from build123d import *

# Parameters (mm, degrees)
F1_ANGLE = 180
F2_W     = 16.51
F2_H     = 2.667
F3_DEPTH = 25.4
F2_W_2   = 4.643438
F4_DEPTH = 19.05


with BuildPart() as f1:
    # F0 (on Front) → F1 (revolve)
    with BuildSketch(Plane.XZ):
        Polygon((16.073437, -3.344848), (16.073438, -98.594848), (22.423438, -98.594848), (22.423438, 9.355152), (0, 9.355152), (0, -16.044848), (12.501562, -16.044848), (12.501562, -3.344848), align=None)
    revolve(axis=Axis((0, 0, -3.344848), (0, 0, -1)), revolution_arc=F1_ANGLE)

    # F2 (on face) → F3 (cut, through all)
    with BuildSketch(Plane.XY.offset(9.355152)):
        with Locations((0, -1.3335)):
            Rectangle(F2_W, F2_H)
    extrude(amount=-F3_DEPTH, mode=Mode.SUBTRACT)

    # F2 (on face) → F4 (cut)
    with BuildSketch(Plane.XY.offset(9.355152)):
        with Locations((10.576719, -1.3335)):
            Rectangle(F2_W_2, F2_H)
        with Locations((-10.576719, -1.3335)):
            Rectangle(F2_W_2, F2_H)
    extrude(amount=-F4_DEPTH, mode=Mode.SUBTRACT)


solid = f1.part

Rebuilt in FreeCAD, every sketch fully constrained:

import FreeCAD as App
import Part
import Sketcher
Q = App.Units.Quantity

doc = App.newDocument("Part")
body = doc.addObject("PartDesign::Body", "Body")

# Sketch on XZ plane
sketch1 = body.newObject("Sketcher::SketchObject", "Sketch")
sketch1.AttachmentSupport = (doc.getObject("XZ_Plane"), [""])
sketch1.MapMode = "FlatFace"
sketch1.addGeometry([
    Part.LineSegment(App.Vector(16.1, -3.3, 0), App.Vector(16.1, -98.6, 0)),  # 0
    Part.LineSegment(App.Vector(16.1, -98.6, 0), App.Vector(22.4, -98.6, 0)),  # 1
    Part.LineSegment(App.Vector(22.4, -98.6, 0), App.Vector(22.4, 9.4, 0)),  # 2
    Part.LineSegment(App.Vector(22.4, 9.4, 0), App.Vector(0, 9.4, 0)),  # 3
    Part.LineSegment(App.Vector(0, 9.4, 0), App.Vector(0, -16, 0)),  # 4
    Part.LineSegment(App.Vector(0, -16, 0), App.Vector(12.5, -16, 0)),  # 5
    Part.LineSegment(App.Vector(12.5, -16, 0), App.Vector(12.5, -3.3, 0)),  # 6
    Part.LineSegment(App.Vector(12.5, -3.3, 0), App.Vector(16.1, -3.3, 0)),  # 7
], False)
sketch1.addConstraint([
    Sketcher.Constraint("Coincident", 0, 2, 1, 1),
    Sketcher.Constraint("Coincident", 1, 2, 2, 1),
    Sketcher.Constraint("Coincident", 2, 2, 3, 1),
    Sketcher.Constraint("Coincident", 3, 2, 4, 1),
    Sketcher.Constraint("Coincident", 4, 2, 5, 1),
    Sketcher.Constraint("Coincident", 5, 2, 6, 1),
    Sketcher.Constraint("Coincident", 6, 2, 7, 1),
    Sketcher.Constraint("Coincident", 7, 2, 0, 1),
    Sketcher.Constraint("Vertical", 0),
    Sketcher.Constraint("Horizontal", 1),
    Sketcher.Constraint("Vertical", 2),
    Sketcher.Constraint("Horizontal", 3),
    Sketcher.Constraint("Vertical", 4),
    Sketcher.Constraint("Horizontal", 5),
    Sketcher.Constraint("Vertical", 6),
    Sketcher.Constraint("Horizontal", 7),
    Sketcher.Constraint("PointOnObject", 3, 2, -2),
    Sketcher.Constraint("DistanceY", 4, 2, 4, 1, Q("1 in")),
    Sketcher.Constraint("DistanceY", 6, 1, 6, 2, Q("0.5 in")),
    Sketcher.Constraint("DistanceX", 1, 1, 1, 2, Q("0.25 in")),
    Sketcher.Constraint("DistanceY", 0, 2, 0, 1, Q("3.75 in")),
    Sketcher.Constraint("DistanceX", 7, 1, 7, 2, Q("0.140625 in")),
    Sketcher.Constraint("DistanceX", 3, 2, 3, 1, 22.423438),
    Sketcher.Constraint("DistanceY", 0, 2, -1, 1, 98.594848),
])
revolution = body.newObject("PartDesign::Revolution", "Revolution")
revolution.Profile = sketch1
revolution.ReferenceAxis = (sketch1, ["V_Axis"])
revolution.Angle = 180
revolution.Reversed = True

# Sketch on XY plane
sketch2 = body.newObject("Sketcher::SketchObject", "Sketch001")
sketch2.AttachmentSupport = (doc.getObject("XY_Plane"), [""])
sketch2.MapMode = "FlatFace"
sketch2.AttachmentOffset = App.Placement(App.Vector(0, 0, 9.355152), App.Rotation())
sketch2.addGeometry([
    Part.LineSegment(App.Vector(-8.3, 0, 0), App.Vector(-8.3, -2.7, 0)),
    Part.LineSegment(App.Vector(-8.3, -2.7, 0), App.Vector(8.3, -2.7, 0)),
    Part.LineSegment(App.Vector(8.3, -2.7, 0), App.Vector(8.3, 0, 0)),
    Part.LineSegment(App.Vector(8.3, 0, 0), App.Vector(-8.3, 0, 0)),
], False)
sketch2.addConstraint([
    Sketcher.Constraint("Coincident", 0, 2, 1, 1),
    Sketcher.Constraint("Coincident", 1, 2, 2, 1),
    Sketcher.Constraint("Coincident", 2, 2, 3, 1),
    Sketcher.Constraint("Coincident", 3, 2, 0, 1),
    Sketcher.Constraint("Vertical", 0),
    Sketcher.Constraint("Horizontal", 1),
    Sketcher.Constraint("Vertical", 2),
    Sketcher.Constraint("Horizontal", 3),
    Sketcher.Constraint("Symmetric", 2, 2, 3, 2, -1, 1),
    Sketcher.Constraint("DistanceX", 1, 1, 1, 2, Q("0.65 in")),
    Sketcher.Constraint("DistanceY", 0, 2, 0, 1, Q("0.105 in")),
])
pocket1 = body.newObject("PartDesign::Pocket", "Pocket")
pocket1.Profile = sketch2
pocket1.Type = "ThroughAll"

# Sketch on XY plane
sketch3 = body.newObject("Sketcher::SketchObject", "Sketch002")
sketch3.AttachmentSupport = (doc.getObject("XY_Plane"), [""])
sketch3.MapMode = "FlatFace"
sketch3.AttachmentOffset = App.Placement(App.Vector(0, 0, 9.355152), App.Rotation())
sketch3.addGeometry([
    Part.LineSegment(App.Vector(8.3, 0, 0), App.Vector(8.3, -2.7, 0)),  # 0
    Part.LineSegment(App.Vector(8.3, -2.7, 0), App.Vector(12.9, -2.7, 0)),  # 1
    Part.LineSegment(App.Vector(12.9, -2.7, 0), App.Vector(12.9, 0, 0)),  # 2
    Part.LineSegment(App.Vector(12.9, 0, 0), App.Vector(8.3, 0, 0)),  # 3
    Part.LineSegment(App.Vector(-12.9, 0, 0), App.Vector(-12.9, -2.7, 0)),  # 4
    Part.LineSegment(App.Vector(-12.9, -2.7, 0), App.Vector(-8.3, -2.7, 0)),  # 5
    Part.LineSegment(App.Vector(-8.3, -2.7, 0), App.Vector(-8.3, 0, 0)),  # 6
    Part.LineSegment(App.Vector(-8.3, 0, 0), App.Vector(-12.9, 0, 0)),  # 7
], False)
sketch3.addConstraint([
    Sketcher.Constraint("Coincident", 0, 2, 1, 1),
    Sketcher.Constraint("Coincident", 1, 2, 2, 1),
    Sketcher.Constraint("Coincident", 2, 2, 3, 1),
    Sketcher.Constraint("Coincident", 3, 2, 0, 1),
    Sketcher.Constraint("Coincident", 4, 2, 5, 1),
    Sketcher.Constraint("Coincident", 5, 2, 6, 1),
    Sketcher.Constraint("Coincident", 6, 2, 7, 1),
    Sketcher.Constraint("Coincident", 7, 2, 4, 1),
    Sketcher.Constraint("Vertical", 0),
    Sketcher.Constraint("Horizontal", 1),
    Sketcher.Constraint("Vertical", 2),
    Sketcher.Constraint("Horizontal", 3),
    Sketcher.Constraint("Vertical", 4),
    Sketcher.Constraint("Horizontal", 5),
    Sketcher.Constraint("Vertical", 6),
    Sketcher.Constraint("Horizontal", 7),
    Sketcher.Constraint("Symmetric", 3, 2, 6, 2, -1, 1),
    Sketcher.Constraint("Symmetric", 1, 2, 4, 2, -2),
    Sketcher.Constraint("PointOnObject", 2, 2, -1),
    Sketcher.Constraint("DistanceY", 0, 2, 0, 1, Q("0.105 in")),
    Sketcher.Constraint("DistanceX", 5, 2, 0, 2, Q("0.65 in")),
    Sketcher.Constraint("DistanceX", 4, 2, 1, 2, Q("1.015625 in")),
])
pocket2 = body.newObject("PartDesign::Pocket", "Pocket001")
pocket2.Profile = sketch3
pocket2.Length = Q("0.75 in")

doc.recompute()
